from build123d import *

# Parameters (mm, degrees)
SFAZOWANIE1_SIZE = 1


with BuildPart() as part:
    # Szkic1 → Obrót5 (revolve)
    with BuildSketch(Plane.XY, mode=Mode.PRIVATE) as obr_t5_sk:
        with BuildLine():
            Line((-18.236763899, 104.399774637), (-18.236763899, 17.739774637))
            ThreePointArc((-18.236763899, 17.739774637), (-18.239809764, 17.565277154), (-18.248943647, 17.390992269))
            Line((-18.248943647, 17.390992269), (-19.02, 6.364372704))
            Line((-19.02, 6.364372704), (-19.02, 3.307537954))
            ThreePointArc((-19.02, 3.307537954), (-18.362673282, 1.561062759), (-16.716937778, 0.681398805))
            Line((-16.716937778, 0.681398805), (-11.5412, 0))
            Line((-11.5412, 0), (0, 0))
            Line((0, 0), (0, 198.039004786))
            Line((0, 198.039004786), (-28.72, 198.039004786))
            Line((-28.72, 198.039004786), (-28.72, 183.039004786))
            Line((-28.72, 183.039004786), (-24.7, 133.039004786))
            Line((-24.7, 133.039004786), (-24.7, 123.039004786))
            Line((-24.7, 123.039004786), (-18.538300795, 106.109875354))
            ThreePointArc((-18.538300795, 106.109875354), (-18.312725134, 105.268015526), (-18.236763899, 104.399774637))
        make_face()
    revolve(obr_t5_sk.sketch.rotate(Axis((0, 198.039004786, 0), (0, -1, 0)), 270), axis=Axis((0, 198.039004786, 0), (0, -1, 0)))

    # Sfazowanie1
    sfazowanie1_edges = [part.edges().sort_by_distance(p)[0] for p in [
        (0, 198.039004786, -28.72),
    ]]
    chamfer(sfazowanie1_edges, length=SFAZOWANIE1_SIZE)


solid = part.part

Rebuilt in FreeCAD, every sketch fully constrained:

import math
import FreeCAD as App
import Part
import Sketcher
Q = App.Units.Quantity


def edges_at(feature, points):
    """Names of the edges that pass closest to the given points."""
    edges = feature.Shape.Edges
    near = lambda p: min(range(len(edges)), key=lambda i: edges[i].distToShape(Part.Vertex(*p))[0])
    return sorted({f"Edge{near(p) + 1}" for p in points})

doc = App.newDocument("Part")
body = doc.addObject("PartDesign::Body", "Body")

sketch1 = doc.addObject("Sketcher::SketchObject", "Sketch")
body.addObject(sketch1)
sketch1.AttachmentSupport = (doc.XY_Plane, [""])
sketch1.MapMode = "FlatFace"
sketch1.addGeometry(Part.LineSegment(App.Vector(-18.24, 104.4, 0), App.Vector(-18.24, 17.74, 0)), False)
sketch1.addGeometry(Part.ArcOfCircle(Part.Circle(App.Vector(-23.24, 17.74, 0), App.Vector(0, 0, 1), 5), math.radians(-4), math.radians(0)), False)
sketch1.addGeometry(Part.LineSegment(App.Vector(-18.25, 17.39, 0), App.Vector(-19.02, 6.36, 0)), False)
sketch1.addGeometry(Part.LineSegment(App.Vector(-19.02, 6.36, 0), App.Vector(-19.02, 3.31, 0)), False)
sketch1.addGeometry(Part.ArcOfCircle(Part.Circle(App.Vector(-16.37, 3.31, 0), App.Vector(0, 0, 1), 2.65), math.radians(180), math.radians(262)), False)
sketch1.addGeometry(Part.LineSegment(App.Vector(-16.72, 0.68, 0), App.Vector(-11.54, 0, 0)), False)
sketch1.addGeometry(Part.LineSegment(App.Vector(-11.54, 0, 0), App.Vector(0, 0, 0)), False)
sketch1.addGeometry(Part.LineSegment(App.Vector(0, 0, 0), App.Vector(0, 198.04, 0)), False)
sketch1.addGeometry(Part.LineSegment(App.Vector(0, 198.04, 0), App.Vector(-28.72, 198.04, 0)), False)
sketch1.addGeometry(Part.LineSegment(App.Vector(-28.72, 198.04, 0), App.Vector(-28.72, 183.04, 0)), False)
sketch1.addGeometry(Part.LineSegment(App.Vector(-28.72, 183.04, 0), App.Vector(-24.7, 133.04, 0)), False)
sketch1.addGeometry(Part.LineSegment(App.Vector(-24.7, 133.04, 0), App.Vector(-24.7, 123.04, 0)), False)
sketch1.addGeometry(Part.LineSegment(App.Vector(-24.7, 123.04, 0), App.Vector(-18.54, 106.11, 0)), False)
sketch1.addGeometry(Part.ArcOfCircle(Part.Circle(App.Vector(-23.24, 104.4, 0), App.Vector(0, 0, 1), 5), math.radians(0), math.radians(20)), False)
sketch1.addConstraint(Sketcher.Constraint("Tangent", 0, 2, 1, 2))
sketch1.addConstraint(Sketcher.Constraint("Tangent", 1, 1, 2, 1))
sketch1.addConstraint(Sketcher.Constraint("Coincident", 2, 2, 3, 1))
sketch1.addConstraint(Sketcher.Constraint("Tangent", 3, 2, 4, 1))
sketch1.addConstraint(Sketcher.Constraint("Tangent", 4, 2, 5, 1))
sketch1.addConstraint(Sketcher.Constraint("Coincident", 5, 2, 6, 1))
sketch1.addConstraint(Sketcher.Constraint("Coincident", 6, 2, 7, 1))
sketch1.addConstraint(Sketcher.Constraint("Coincident", 7, 2, 8, 1))
sketch1.addConstraint(Sketcher.Constraint("Coincident", 8, 2, 9, 1))
sketch1.addConstraint(Sketcher.Constraint("Coincident", 9, 2, 10, 1))
sketch1.addConstraint(Sketcher.Constraint("Coincident", 10, 2, 11, 1))
sketch1.addConstraint(Sketcher.Constraint("Coincident", 11, 2, 12, 1))
sketch1.addConstraint(Sketcher.Constraint("Tangent", 12, 2, 13, 2))
sketch1.addConstraint(Sketcher.Constraint("Tangent", 13, 1, 0, 1))
sketch1.addConstraint(Sketcher.Constraint("Vertical", 0))
sketch1.addConstraint(Sketcher.Constraint("Vertical", 3))
sketch1.addConstraint(Sketcher.Constraint("Horizontal", 6))
sketch1.addConstraint(Sketcher.Constraint("Vertical", 7))
sketch1.addConstraint(Sketcher.Constraint("Horizontal", 8))
sketch1.addConstraint(Sketcher.Constraint("Vertical", 9))
sketch1.addConstraint(Sketcher.Constraint("Vertical", 11))
sketch1.addConstraint(Sketcher.Constraint("Coincident", 6, 2, -1, 1))
sketch1.addConstraint(Sketcher.Constraint("Equal", 1, 13))
sketch1.addConstraint(Sketcher.Constraint("Radius", 1, Q("5.000001 mm")))
sketch1.addConstraint(Sketcher.Constraint("DistanceY", 9, 2, 9, 1, Q("15 mm")))
sketch1.addConstraint(Sketcher.Constraint("DistanceY", 11, 2, 11, 1, Q("10 mm")))
sketch1.addConstraint(Sketcher.Constraint("Angle", 2, Q("-94 deg")))
sketch1.addConstraint(Sketcher.Constraint("Angle", 12, Q("-70 deg")))
sketch1.addConstraint(Sketcher.Constraint("Angle", 5, Q("-7.5 deg")))
sketch1.addConstraint(Sketcher.Constraint("DistanceY", 10, 2, 9, 2, Q("50 mm")))
sketch1.addConstraint(Sketcher.Constraint("DistanceX", 8, 2, 8, 1, Q("28.72 mm")))
sketch1.addConstraint(Sketcher.Constraint("DistanceY", 0, 2, 0, 1, Q("86.66 mm")))
sketch1.addConstraint(Sketcher.Constraint("DistanceX", 10, 2, -1, 1, Q("24.7 mm")))
sketch1.addConstraint(Sketcher.Constraint("Radius", 4, Q("2.6488 mm")))
sketch1.addConstraint(Sketcher.Constraint("DistanceX", 2, 2, -1, 1, Q("19.02 mm")))
sketch1.addConstraint(Sketcher.Constraint("DistanceX", 4, 3, 5, 2, Q("4.83 mm")))
sketch1.addConstraint(Sketcher.Constraint("DistanceX", 12, 2, -1, 1, Q("18.538301 mm")))
sketch1.addConstraint(Sketcher.Constraint("DistanceY", 3, 2, 3, 1, Q("3.056835 mm")))
revolution = doc.addObject("PartDesign::Revolution", "Revolution")
body.addObject(revolution)
revolution.Profile = sketch1
revolution.ReferenceAxis = (sketch1, ["V_Axis"])
revolution.Angle = 360
doc.recompute()

chamfer = doc.addObject("PartDesign::Chamfer", "Chamfer")
body.addObject(chamfer)
chamfer.Base = (revolution, edges_at(revolution, [(0, 198.039, -28.72)]))
chamfer.Size = 1

doc.recompute()
